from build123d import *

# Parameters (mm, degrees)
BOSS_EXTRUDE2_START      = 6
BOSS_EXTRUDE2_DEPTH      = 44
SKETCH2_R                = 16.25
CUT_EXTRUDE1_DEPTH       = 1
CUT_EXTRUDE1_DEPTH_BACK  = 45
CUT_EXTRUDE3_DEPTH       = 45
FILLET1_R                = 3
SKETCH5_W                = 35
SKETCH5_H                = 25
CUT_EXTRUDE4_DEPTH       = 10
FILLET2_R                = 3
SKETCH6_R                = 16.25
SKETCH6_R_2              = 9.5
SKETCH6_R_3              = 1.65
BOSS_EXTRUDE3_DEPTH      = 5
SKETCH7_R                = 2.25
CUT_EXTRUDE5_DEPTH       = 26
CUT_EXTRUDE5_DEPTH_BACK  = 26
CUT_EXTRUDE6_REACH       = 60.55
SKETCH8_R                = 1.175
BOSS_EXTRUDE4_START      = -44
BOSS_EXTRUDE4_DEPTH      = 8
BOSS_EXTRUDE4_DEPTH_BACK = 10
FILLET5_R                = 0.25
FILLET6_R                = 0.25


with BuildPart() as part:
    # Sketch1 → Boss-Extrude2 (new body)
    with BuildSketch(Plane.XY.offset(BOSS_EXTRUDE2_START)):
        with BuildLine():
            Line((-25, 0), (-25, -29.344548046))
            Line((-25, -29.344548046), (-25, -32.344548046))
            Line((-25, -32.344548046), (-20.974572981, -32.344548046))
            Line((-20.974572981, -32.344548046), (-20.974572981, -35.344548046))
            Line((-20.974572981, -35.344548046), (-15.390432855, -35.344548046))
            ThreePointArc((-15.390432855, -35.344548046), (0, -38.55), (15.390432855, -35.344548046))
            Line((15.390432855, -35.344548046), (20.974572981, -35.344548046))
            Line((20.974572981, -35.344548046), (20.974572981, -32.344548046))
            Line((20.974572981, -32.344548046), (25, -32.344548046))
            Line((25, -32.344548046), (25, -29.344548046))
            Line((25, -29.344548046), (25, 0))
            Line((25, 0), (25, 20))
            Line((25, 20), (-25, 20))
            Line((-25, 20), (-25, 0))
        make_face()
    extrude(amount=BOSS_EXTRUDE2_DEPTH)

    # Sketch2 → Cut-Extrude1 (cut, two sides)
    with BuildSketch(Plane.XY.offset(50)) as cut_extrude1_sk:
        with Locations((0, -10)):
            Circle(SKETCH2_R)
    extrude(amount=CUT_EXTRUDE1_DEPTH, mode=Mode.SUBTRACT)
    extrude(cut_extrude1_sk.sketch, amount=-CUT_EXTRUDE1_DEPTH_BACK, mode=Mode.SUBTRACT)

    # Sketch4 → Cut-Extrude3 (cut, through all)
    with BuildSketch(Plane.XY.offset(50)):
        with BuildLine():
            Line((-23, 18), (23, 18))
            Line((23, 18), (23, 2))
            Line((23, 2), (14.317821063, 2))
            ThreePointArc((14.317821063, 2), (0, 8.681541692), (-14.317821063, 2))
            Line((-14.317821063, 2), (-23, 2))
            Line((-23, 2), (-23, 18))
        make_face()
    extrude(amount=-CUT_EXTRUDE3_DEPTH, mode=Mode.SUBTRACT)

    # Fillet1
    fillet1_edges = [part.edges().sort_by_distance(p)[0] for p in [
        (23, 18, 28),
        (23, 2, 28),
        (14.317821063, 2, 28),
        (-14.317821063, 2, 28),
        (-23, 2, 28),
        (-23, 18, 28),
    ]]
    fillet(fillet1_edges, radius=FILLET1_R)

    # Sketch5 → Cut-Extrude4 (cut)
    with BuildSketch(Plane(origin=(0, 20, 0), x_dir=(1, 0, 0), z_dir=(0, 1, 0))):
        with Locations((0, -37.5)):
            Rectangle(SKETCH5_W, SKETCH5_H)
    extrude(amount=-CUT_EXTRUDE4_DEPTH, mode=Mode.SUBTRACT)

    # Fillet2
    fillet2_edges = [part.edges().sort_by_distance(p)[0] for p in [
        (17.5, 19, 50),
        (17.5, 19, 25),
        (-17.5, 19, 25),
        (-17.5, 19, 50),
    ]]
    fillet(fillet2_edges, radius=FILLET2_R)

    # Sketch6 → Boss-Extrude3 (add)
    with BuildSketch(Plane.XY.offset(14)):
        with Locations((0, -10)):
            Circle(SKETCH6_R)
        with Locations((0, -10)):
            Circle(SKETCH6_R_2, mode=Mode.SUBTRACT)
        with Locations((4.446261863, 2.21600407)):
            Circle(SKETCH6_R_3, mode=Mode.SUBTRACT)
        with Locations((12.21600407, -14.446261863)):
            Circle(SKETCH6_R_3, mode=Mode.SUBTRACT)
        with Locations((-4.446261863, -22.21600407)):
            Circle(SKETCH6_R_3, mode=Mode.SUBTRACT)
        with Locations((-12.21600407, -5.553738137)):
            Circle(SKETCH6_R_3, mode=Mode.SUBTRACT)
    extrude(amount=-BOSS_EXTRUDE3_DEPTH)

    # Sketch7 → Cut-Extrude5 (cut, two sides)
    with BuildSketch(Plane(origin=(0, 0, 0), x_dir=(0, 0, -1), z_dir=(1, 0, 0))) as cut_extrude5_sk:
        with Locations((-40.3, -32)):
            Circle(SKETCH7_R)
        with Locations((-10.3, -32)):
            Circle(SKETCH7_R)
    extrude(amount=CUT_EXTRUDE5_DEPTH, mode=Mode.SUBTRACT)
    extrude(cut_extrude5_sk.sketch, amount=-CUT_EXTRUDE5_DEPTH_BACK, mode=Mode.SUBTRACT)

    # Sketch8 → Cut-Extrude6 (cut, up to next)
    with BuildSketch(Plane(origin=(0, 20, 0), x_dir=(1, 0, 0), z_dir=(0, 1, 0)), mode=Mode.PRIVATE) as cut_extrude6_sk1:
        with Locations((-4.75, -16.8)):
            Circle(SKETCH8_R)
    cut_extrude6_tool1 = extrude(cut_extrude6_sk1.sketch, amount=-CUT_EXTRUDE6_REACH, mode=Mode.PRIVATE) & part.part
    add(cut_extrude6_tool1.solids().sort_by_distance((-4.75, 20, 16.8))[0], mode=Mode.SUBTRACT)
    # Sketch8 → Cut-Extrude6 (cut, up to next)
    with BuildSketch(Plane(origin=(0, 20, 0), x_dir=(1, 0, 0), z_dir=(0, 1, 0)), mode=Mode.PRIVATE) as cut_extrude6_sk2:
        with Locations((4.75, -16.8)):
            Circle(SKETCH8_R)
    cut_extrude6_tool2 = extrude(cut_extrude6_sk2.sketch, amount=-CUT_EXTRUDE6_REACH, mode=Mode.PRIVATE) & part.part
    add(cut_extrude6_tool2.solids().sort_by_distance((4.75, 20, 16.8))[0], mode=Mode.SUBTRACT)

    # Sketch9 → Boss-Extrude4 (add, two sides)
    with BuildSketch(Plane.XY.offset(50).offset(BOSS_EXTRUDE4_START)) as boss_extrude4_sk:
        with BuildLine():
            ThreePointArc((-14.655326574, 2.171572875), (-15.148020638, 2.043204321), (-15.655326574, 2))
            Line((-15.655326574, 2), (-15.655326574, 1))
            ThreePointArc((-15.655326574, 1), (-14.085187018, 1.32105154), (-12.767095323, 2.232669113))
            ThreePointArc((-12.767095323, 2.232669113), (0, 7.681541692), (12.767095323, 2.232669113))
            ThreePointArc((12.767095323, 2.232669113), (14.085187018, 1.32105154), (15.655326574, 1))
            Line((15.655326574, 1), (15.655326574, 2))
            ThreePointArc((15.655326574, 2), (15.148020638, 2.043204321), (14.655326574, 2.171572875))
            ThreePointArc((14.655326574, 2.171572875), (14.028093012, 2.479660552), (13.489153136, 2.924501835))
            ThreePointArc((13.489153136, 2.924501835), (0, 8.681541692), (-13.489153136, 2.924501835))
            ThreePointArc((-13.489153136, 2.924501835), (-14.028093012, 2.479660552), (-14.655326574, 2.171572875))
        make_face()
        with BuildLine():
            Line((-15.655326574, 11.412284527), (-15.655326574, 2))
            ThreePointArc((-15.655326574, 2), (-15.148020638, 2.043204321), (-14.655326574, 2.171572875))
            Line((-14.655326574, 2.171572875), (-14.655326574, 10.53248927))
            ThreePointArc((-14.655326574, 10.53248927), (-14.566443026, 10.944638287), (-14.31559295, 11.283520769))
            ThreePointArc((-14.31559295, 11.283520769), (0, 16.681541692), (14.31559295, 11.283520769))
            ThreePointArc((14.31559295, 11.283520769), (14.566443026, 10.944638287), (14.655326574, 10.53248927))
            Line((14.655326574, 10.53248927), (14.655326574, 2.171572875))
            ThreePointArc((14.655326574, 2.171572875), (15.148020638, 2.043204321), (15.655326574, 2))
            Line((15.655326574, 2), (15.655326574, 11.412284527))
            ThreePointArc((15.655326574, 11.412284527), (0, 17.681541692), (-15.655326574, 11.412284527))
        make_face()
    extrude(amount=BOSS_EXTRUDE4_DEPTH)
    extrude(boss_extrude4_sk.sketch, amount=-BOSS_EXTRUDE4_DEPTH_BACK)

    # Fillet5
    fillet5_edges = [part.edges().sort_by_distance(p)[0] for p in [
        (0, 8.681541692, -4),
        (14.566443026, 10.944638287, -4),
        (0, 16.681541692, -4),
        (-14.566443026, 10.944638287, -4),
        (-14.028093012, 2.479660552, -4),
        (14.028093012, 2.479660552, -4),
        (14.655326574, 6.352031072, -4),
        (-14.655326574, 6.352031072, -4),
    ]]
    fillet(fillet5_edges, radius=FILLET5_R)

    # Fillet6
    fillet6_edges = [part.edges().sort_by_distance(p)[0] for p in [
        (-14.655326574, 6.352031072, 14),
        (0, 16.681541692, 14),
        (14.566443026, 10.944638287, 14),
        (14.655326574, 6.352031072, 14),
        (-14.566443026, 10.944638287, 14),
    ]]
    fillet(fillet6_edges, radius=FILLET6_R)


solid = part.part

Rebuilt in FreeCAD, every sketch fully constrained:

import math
import FreeCAD as App
import Part
import Sketcher

V = App.Vector


def edges_at(feature, points):
    """Names of the edges that pass closest to the given points."""
    edges = feature.Shape.Edges
    near = lambda p: min(range(len(edges)), key=lambda i: edges[i].distToShape(Part.Vertex(*p))[0])
    return sorted({f"Edge{near(p) + 1}" for p in points})


def add_polygon(sketch, points):
    """Adds a closed chain of lines whose ends are joined by coincident constraints."""
    first, n = sketch.GeometryCount, len(points)
    for a, b in zip(points, points[1:] + points[:1]):
        sketch.addGeometry(Part.LineSegment(App.Vector(*a, 0), App.Vector(*b, 0)), False)
    for i in range(n):
        sketch.addConstraint(Sketcher.Constraint("Coincident", first + i, 2, first + (i + 1) % n, 1))

doc = App.newDocument("Part")
body = doc.addObject("PartDesign::Body", "Body")

sketch1 = body.newObject("Sketcher::SketchObject", "Sketch")
sketch1.AttachmentSupport = (doc.getObject("XY_Plane"), [""])
sketch1.MapMode = "FlatFace"
sketch1.AttachmentOffset = App.Placement(V(0, 0, 6), App.Rotation())
sketch1.addGeometry([
    Part.LineSegment(V(-25, -32.3, 0), V(-21, -32.3, 0)),
    Part.LineSegment(V(-21, -32.3, 0), V(-21, -35.3, 0)),
    Part.LineSegment(V(-21, -35.3, 0), V(-15.4, -35.3, 0)),
    Part.ArcOfCircle(Part.Circle(V(0, 0, 0), V(0, 0, 1), 38.6), math.radians(-114), math.radians(-66)),
    Part.LineSegment(V(15.4, -35.3, 0), V(21, -35.3, 0)),
    Part.LineSegment(V(21, -35.3, 0), V(21, -32.3, 0)),
    Part.LineSegment(V(21, -32.3, 0), V(25, -32.3, 0)),
    Part.LineSegment(V(25, -32.3, 0), V(25, 20, 0)),
    Part.LineSegment(V(25, 20, 0), V(-25, 20, 0)),
    Part.LineSegment(V(-25, 20, 0), V(-25, -32.3, 0)),
], False)
sketch1.addConstraint([
    Sketcher.Constraint("Coincident", 0, 2, 1, 1),
    Sketcher.Constraint("Coincident", 1, 2, 2, 1),
    Sketcher.Constraint("Coincident", 2, 2, 3, 1),
    Sketcher.Constraint("Coincident", 3, 2, 4, 1),
    Sketcher.Constraint("Coincident", 4, 2, 5, 1),
    Sketcher.Constraint("Coincident", 5, 2, 6, 1),
    Sketcher.Constraint("Coincident", 6, 2, 7, 1),
    Sketcher.Constraint("Coincident", 7, 2, 8, 1),
    Sketcher.Constraint("Coincident", 8, 2, 9, 1),
    Sketcher.Constraint("Coincident", 9, 2, 0, 1),
    Sketcher.Constraint("Horizontal", 0),
    Sketcher.Constraint("Vertical", 1),
    Sketcher.Constraint("Horizontal", 2),
    Sketcher.Constraint("Horizontal", 4),
    Sketcher.Constraint("Vertical", 5),
    Sketcher.Constraint("Horizontal", 6),
    Sketcher.Constraint("Vertical", 7),
    Sketcher.Constraint("Horizontal", 8),
    Sketcher.Constraint("Vertical", 9),
    Sketcher.Constraint("Coincident", 3, 3, -1, 1),
    Sketcher.Constraint("Symmetric", 1, 2, 4, 2, -2),
    Sketcher.Constraint("Symmetric", 6, 2, 9, 2, -2),
    Sketcher.Constraint("DistanceX", 8, 2, 8, 1, 50.0),
    Sketcher.Constraint("DistanceY", 1, 2, 1, 1, 3.0),
    Sketcher.Constraint("Radius", 3, 38.55),
    Sketcher.Constraint("DistanceY", -1, 1, 7, 2, 20.0),
    Sketcher.Constraint("DistanceX", 2, 1, 2, 2, 5.58414),
    Sketcher.Constraint("DistanceY", 7, 1, 7, 2, 52.344548),
])
pad1 = body.newObject("PartDesign::Pad", "Pad")
pad1.Profile = sketch1
pad1.Length = 44

sketch2 = body.newObject("Sketcher::SketchObject", "Sketch001")
sketch2.AttachmentSupport = (doc.getObject("XY_Plane"), [""])
sketch2.MapMode = "FlatFace"
sketch2.AttachmentOffset = App.Placement(V(0, 0, 50), App.Rotation())
sketch2.addGeometry(Part.Circle(V(0, -10, 0), V(0, 0, 1), 16), False)
sketch2.addConstraint([
    Sketcher.Constraint("PointOnObject", 0, 3, -2),
    Sketcher.Constraint("Diameter", 0, 32.5),
    Sketcher.Constraint("DistanceY", 0, 3, -1, 1, 10.0),
])
pocket1 = body.newObject("PartDesign::Pocket", "Pocket")
pocket1.Profile = sketch2
pocket1.Type = "ThroughAll"
pocket1.Midplane = True

sketch3 = body.newObject("Sketcher::SketchObject", "Sketch002")
sketch3.AttachmentSupport = (doc.getObject("XY_Plane"), [""])
sketch3.MapMode = "FlatFace"
sketch3.AttachmentOffset = App.Placement(V(0, 0, 50), App.Rotation())
sketch3.addGeometry([
    Part.LineSegment(V(23, 18, 0), V(-23, 18, 0)),
    Part.LineSegment(V(-23, 18, 0), V(-23, 2, 0)),
    Part.LineSegment(V(-23, 2, 0), V(-14, 2, 0)),
    Part.ArcOfCircle(Part.Circle(V(0, -10, 0), V(0, 0, 1), 19), math.radians(40), math.radians(140)),
    Part.LineSegment(V(14, 2, 0), V(23, 2, 0)),
    Part.LineSegment(V(23, 2, 0), V(23, 18, 0)),
], False)
sketch3.addConstraint([
    Sketcher.Constraint("Coincident", 0, 2, 1, 1),
    Sketcher.Constraint("Coincident", 1, 2, 2, 1),
    Sketcher.Constraint("Coincident", 2, 2, 3, 2),
    Sketcher.Constraint("Coincident", 3, 1, 4, 1),
    Sketcher.Constraint("Coincident", 4, 2, 5, 1),
    Sketcher.Constraint("Coincident", 5, 2, 0, 1),
    Sketcher.Constraint("Horizontal", 0),
    Sketcher.Constraint("Vertical", 1),
    Sketcher.Constraint("Horizontal", 2),
    Sketcher.Constraint("Horizontal", 4),
    Sketcher.Constraint("Vertical", 5),
    Sketcher.Constraint("Symmetric", 2, 2, 3, 1, -2),
    Sketcher.Constraint("Equal", 2, 4),
    Sketcher.Constraint("DistanceX", 0, 2, 0, 1, 46.0),
    Sketcher.Constraint("DistanceY", 1, 2, 1, 1, 16.0),
    Sketcher.Constraint("DistanceY", 3, 3, -1, 1, 10.0),
    Sketcher.Constraint("DistanceY", -1, 1, 0, 2, 18.0),
    Sketcher.Constraint("Radius", 3, 18.681542),
])
pocket2 = body.newObject("PartDesign::Pocket", "Pocket001")
pocket2.Profile = sketch3
pocket2.Type = "ThroughAll"
doc.recompute()

fillet = body.newObject("PartDesign::Fillet", "Fillet")
fillet.Base = (pocket2, edges_at(pocket2, [
    (23, 18, 28),
    (23, 2, 28),
    (14.318, 2, 28),
    (-14.318, 2, 28),
    (-23, 2, 28),
    (-23, 18, 28),
]))
fillet.Radius = 3

sketch4 = body.newObject("Sketcher::SketchObject", "Sketch003")
sketch4.AttachmentSupport = (doc.getObject("XZ_Plane"), [""])
sketch4.MapMode = "FlatFace"
sketch4.AttachmentOffset = App.Placement(V(0, 0, -20), App.Rotation())
add_polygon(sketch4, [(-18, 25), (-18, 50), (18, 50), (18, 25)])
sketch4.addConstraint([
    Sketcher.Constraint("Vertical", 0),
    Sketcher.Constraint("Horizontal", 1),
    Sketcher.Constraint("Vertical", 2),
    Sketcher.Constraint("Horizontal", 3),
    Sketcher.Constraint("DistanceX", 1, 1, 1, 2, 35.0),
    Sketcher.Constraint("DistanceY", 0, 1, 0, 2, 25.0),
    Sketcher.Constraint("DistanceY", -1, 1, 0, 2, 50.0),
    Sketcher.Constraint("DistanceX", 0, 2, -1, 1, 17.5),
])
pocket3 = body.newObject("PartDesign::Pocket", "Pocket002")
pocket3.Profile = sketch4
pocket3.Length = 10
pocket3.Reversed = True
doc.recompute()

fillet2 = body.newObject("PartDesign::Fillet", "Fillet001")
fillet2.Base = (pocket3, edges_at(pocket3, [
    (17.5, 19, 50),
    (17.5, 19, 25),
    (-17.5, 19, 25),
    (-17.5, 19, 50),
]))
fillet2.Radius = 3

sketch5 = body.newObject("Sketcher::SketchObject", "Sketch004")
sketch5.AttachmentSupport = (doc.getObject("XY_Plane"), [""])
sketch5.MapMode = "FlatFace"
sketch5.AttachmentOffset = App.Placement(V(0, 0, 14), App.Rotation())
sketch5.addGeometry([
    Part.Circle(V(0, -10, 0), V(0, 0, 1), 16.2),
    Part.Circle(V(-4.4, -22.2, 0), V(0, 0, 1), 1.6),
    Part.Circle(V(0, -10, 0), V(0, 0, 1), 9.5),
    Part.Circle(V(12.2, -14.4, 0), V(0, 0, 1), 1.6),
    Part.Circle(V(-12.2, -5.6, 0), V(0, 0, 1), 1.6),
    Part.Circle(V(4.4, 2.2, 0), V(0, 0, 1), 1.6),
], False)
sketch5.addConstraint([
    Sketcher.Constraint("Coincident", 2, 3, 0, 3),
    Sketcher.Constraint("Equal", 1, 3),
    Sketcher.Constraint("Equal", 3, 4),
    Sketcher.Constraint("Equal", 4, 5),
    Sketcher.Constraint("PointOnObject", 0, 3, -2),
    Sketcher.Constraint("Diameter", 2, 19.0),
    Sketcher.Constraint("Diameter", 0, 32.5),
    Sketcher.Constraint("Diameter", 1, 3.3),
    Sketcher.Constraint("DistanceY", 0, 3, -1, 1, 10.0),
    Sketcher.Constraint("DistanceX", 1, 3, -1, 1, 4.446262),
    Sketcher.Constraint("DistanceY", 3, 3, -1, 1, 14.446262),
    Sketcher.Constraint("DistanceY", 4, 3, -1, 1, 5.553738),
    Sketcher.Constraint("DistanceX", -1, 1, 5, 3, 4.446262),
    Sketcher.Constraint("DistanceX", 4, 3, 3, 3, 24.432008),
    Sketcher.Constraint("DistanceY", 1, 3, 5, 3, 24.432008),
    Sketcher.Constraint("DistanceY", 1, 3, -1, 1, 22.216004),
    Sketcher.Constraint("DistanceX", -1, 1, 3, 3, 12.216004),
])
pad2 = body.newObject("PartDesign::Pad", "Pad001")
pad2.Profile = sketch5
pad2.Length = 5
pad2.Reversed = True

sketch6 = body.newObject("Sketcher::SketchObject", "Sketch005")
sketch6.AttachmentSupport = (doc.getObject("YZ_Plane"), [""])
sketch6.MapMode = "FlatFace"
sketch6.addGeometry([
    Part.Circle(V(-32, 40.3, 0), V(0, 0, 1), 2.2),
    Part.Circle(V(-32, 10.3, 0), V(0, 0, 1), 2.2),
], False)
sketch6.addConstraint([
    Sketcher.Constraint("Equal", 0, 1),
    Sketcher.Constraint("Vertical", 0, 3, 1, 3),
    Sketcher.Constraint("Diameter", 0, 4.5),
    Sketcher.Constraint("DistanceX", 0, 3, -1, 1, 32.0),
    Sketcher.Constraint("DistanceY", 1, 3, 0, 3, 30.0),
    Sketcher.Constraint("DistanceY", -1, 1, 0, 3, 40.3),
])
pocket4 = body.newObject("PartDesign::Pocket", "Pocket003")
pocket4.Profile = sketch6
pocket4.Type = "ThroughAll"
pocket4.Midplane = True

sketch7 = body.newObject("Sketcher::SketchObject", "Sketch006")
sketch7.AttachmentSupport = (doc.getObject("XZ_Plane"), [""])
sketch7.MapMode = "FlatFace"
sketch7.AttachmentOffset = App.Placement(V(0, 0, -20), App.Rotation())
sketch7.addGeometry(Part.Circle(V(-4.8, 16.8, 0), V(0, 0, 1), 1.2), False)
sketch7.addConstraint([
    Sketcher.Constraint("Diameter", 0, 2.35),
    Sketcher.Constraint("DistanceY", -1, 1, 0, 3, 16.8),
    Sketcher.Constraint("DistanceX", 0, 3, -1, 1, 4.75),
])
pocket5 = body.newObject("PartDesign::Pocket", "Pocket004")
pocket5.Profile = sketch7
pocket5.Type = "UpToFirst"
pocket5.Reversed = True

sketch8 = body.newObject("Sketcher::SketchObject", "Sketch007")
sketch8.AttachmentSupport = (doc.getObject("XZ_Plane"), [""])
sketch8.MapMode = "FlatFace"
sketch8.AttachmentOffset = App.Placement(V(0, 0, -20), App.Rotation())
sketch8.addGeometry(Part.Circle(V(4.8, 16.8, 0), V(0, 0, 1), 1.2), False)
sketch8.addConstraint([
    Sketcher.Constraint("Diameter", 0, 2.35),
    Sketcher.Constraint("DistanceY", -1, 1, 0, 3, 16.8),
    Sketcher.Constraint("DistanceX", -1, 1, 0, 3, 4.75),
])
pocket6 = body.newObject("PartDesign::Pocket", "Pocket005")
pocket6.Profile = sketch8
pocket6.Type = "UpToFirst"
pocket6.Reversed = True

sketch9 = body.newObject("Sketcher::SketchObject", "Sketch008")
sketch9.AttachmentSupport = (doc.getObject("XY_Plane"), [""])
sketch9.MapMode = "FlatFace"
sketch9.AttachmentOffset = App.Placement(V(0, 0, 6), App.Rotation())
sketch9.addGeometry([
    Part.ArcOfCircle(Part.Circle(V(-15.7, 5, 0), V(0, 0, 1), 4), math.radians(-90), math.radians(-44)),
    Part.ArcOfCircle(Part.Circle(V(0, -10, 0), V(0, 0, 1), 17.7), math.radians(44), math.radians(136)),
    Part.ArcOfCircle(Part.Circle(V(15.7, 5, 0), V(0, 0, 1), 4), math.radians(-136), math.radians(-90)),
    Part.LineSegment(V(15.7, 1, 0), V(15.7, 11.4, 0)),
    Part.ArcOfCircle(Part.Circle(V(0, -5, 0), V(0, 0, 1), 22.7), math.radians(46), math.radians(134)),
    Part.LineSegment(V(-15.7, 11.4, 0), V(-15.7, 1, 0)),
    Part.ArcOfCircle(Part.Circle(V(15.7, 5, 0), V(0, 0, 1), 3), math.radians(-136), math.radians(-109)),
    Part.ArcOfCircle(Part.Circle(V(0, -10, 0), V(0, 0, 1), 18.7), math.radians(44), math.radians(136)),
    Part.ArcOfCircle(Part.Circle(V(-15.7, 5, 0), V(0, 0, 1), 3), math.radians(-71), math.radians(-44)),
    Part.LineSegment(V(-14.7, 2.2, 0), V(-14.7, 10.5, 0)),
    Part.ArcOfCircle(Part.Circle(V(-13.7, 10.5, 0), V(0, 0, 1), 1), math.radians(131), math.radians(180)),
    Part.ArcOfCircle(Part.Circle(V(0, -5, 0), V(0, 0, 1), 21.7), math.radians(49), math.radians(131)),
    Part.ArcOfCircle(Part.Circle(V(13.7, 10.5, 0), V(0, 0, 1), 1), math.radians(0), math.radians(49)),
    Part.LineSegment(V(14.7, 10.5, 0), V(14.7, 2.2, 0)),
], False)
sketch9.addConstraint([
    Sketcher.Constraint("Tangent", 0, 2, 1, 2),
    Sketcher.Constraint("Tangent", 1, 1, 2, 1),
    Sketcher.Constraint("Coincident", 2, 2, 3, 1),
    Sketcher.Constraint("Coincident", 3, 2, 4, 1),
    Sketcher.Constraint("Coincident", 4, 2, 5, 1),
    Sketcher.Constraint("Coincident", 5, 2, 0, 1),
    Sketcher.Constraint("Tangent", 6, 1, 7, 1),
    Sketcher.Constraint("Tangent", 7, 2, 8, 2),
    Sketcher.Constraint("Coincident", 8, 1, 9, 1),
    Sketcher.Constraint("Tangent", 9, 2, 10, 2),
    Sketcher.Constraint("Tangent", 10, 1, 11, 2),
    Sketcher.Constraint("Tangent", 11, 1, 12, 2),
    Sketcher.Constraint("Tangent", 12, 1, 13, 1),
    Sketcher.Constraint("Coincident", 13, 2, 6, 2),
    Sketcher.Constraint("Vertical", 3),
    Sketcher.Constraint("Vertical", 5),
    Sketcher.Constraint("Vertical", 9),
    Sketcher.Constraint("Vertical", 13),
    Sketcher.Constraint("Coincident", 6, 3, 2, 3),
    Sketcher.Constraint("Coincident", 7, 3, 1, 3),
    Sketcher.Constraint("Coincident", 8, 3, 0, 3),
    Sketcher.Constraint("Coincident", 11, 3, 4, 3),
    Sketcher.Constraint("Equal", 0, 2),
    Sketcher.Constraint("Equal", 10, 12),
    Sketcher.Constraint("Symmetric", 0, 3, 2, 3, -2),
    Sketcher.Constraint("Symmetric", 10, 3, 12, 3, -2),
    Sketcher.Constraint("Horizontal", 3, 2, 4, 2),
    Sketcher.Constraint("Vertical", 6, 3, 2, 2),
    Sketcher.Constraint("Radius", 0, 4.0),
    Sketcher.Constraint("Radius", 6, 3.0),
    Sketcher.Constraint("Radius", 10, 1.0),
    Sketcher.Constraint("DistanceY", -1, 1, 0, 3, 5.0),
    Sketcher.Constraint("DistanceY", 1, 3, -1, 1, 10.0),
    Sketcher.Constraint("DistanceY", 4, 3, -1, 1, 5.0),
    Sketcher.Constraint("DistanceX", 0, 3, 10, 3, 2.0),
    Sketcher.Constraint("Radius", 1, 17.681542),
    Sketcher.Constraint("Radius", 4, 22.681542),
    Sketcher.Constraint("Radius", 11, 21.681542),
])
pad3 = body.newObject("PartDesign::Pad", "Pad002")
pad3.Profile = sketch9
pad3.Type = "TwoLengths"
pad3.Length = 8
pad3.Length2 = 10
doc.recompute()

fillet3 = body.newObject("PartDesign::Fillet", "Fillet002")
fillet3.Base = (pad3, edges_at(pad3, [
    (0, 8.682, -4),
    (14.566, 10.945, -4),
    (0, 16.682, -4),
    (-14.566, 10.945, -4),
    (-14.028, 2.48, -4),
    (14.028, 2.48, -4),
    (14.655, 6.352, -4),
    (-14.655, 6.352, -4),
]))
fillet3.Radius = 0.25
doc.recompute()

fillet4 = body.newObject("PartDesign::Fillet", "Fillet003")
fillet4.Base = (fillet3, edges_at(fillet3, [
    (-14.655, 6.352, 14),
    (0, 16.682, 14),
    (14.566, 10.945, 14),
    (14.655, 6.352, 14),
    (-14.566, 10.945, 14),
]))
fillet4.Radius = 0.25

doc.recompute()
